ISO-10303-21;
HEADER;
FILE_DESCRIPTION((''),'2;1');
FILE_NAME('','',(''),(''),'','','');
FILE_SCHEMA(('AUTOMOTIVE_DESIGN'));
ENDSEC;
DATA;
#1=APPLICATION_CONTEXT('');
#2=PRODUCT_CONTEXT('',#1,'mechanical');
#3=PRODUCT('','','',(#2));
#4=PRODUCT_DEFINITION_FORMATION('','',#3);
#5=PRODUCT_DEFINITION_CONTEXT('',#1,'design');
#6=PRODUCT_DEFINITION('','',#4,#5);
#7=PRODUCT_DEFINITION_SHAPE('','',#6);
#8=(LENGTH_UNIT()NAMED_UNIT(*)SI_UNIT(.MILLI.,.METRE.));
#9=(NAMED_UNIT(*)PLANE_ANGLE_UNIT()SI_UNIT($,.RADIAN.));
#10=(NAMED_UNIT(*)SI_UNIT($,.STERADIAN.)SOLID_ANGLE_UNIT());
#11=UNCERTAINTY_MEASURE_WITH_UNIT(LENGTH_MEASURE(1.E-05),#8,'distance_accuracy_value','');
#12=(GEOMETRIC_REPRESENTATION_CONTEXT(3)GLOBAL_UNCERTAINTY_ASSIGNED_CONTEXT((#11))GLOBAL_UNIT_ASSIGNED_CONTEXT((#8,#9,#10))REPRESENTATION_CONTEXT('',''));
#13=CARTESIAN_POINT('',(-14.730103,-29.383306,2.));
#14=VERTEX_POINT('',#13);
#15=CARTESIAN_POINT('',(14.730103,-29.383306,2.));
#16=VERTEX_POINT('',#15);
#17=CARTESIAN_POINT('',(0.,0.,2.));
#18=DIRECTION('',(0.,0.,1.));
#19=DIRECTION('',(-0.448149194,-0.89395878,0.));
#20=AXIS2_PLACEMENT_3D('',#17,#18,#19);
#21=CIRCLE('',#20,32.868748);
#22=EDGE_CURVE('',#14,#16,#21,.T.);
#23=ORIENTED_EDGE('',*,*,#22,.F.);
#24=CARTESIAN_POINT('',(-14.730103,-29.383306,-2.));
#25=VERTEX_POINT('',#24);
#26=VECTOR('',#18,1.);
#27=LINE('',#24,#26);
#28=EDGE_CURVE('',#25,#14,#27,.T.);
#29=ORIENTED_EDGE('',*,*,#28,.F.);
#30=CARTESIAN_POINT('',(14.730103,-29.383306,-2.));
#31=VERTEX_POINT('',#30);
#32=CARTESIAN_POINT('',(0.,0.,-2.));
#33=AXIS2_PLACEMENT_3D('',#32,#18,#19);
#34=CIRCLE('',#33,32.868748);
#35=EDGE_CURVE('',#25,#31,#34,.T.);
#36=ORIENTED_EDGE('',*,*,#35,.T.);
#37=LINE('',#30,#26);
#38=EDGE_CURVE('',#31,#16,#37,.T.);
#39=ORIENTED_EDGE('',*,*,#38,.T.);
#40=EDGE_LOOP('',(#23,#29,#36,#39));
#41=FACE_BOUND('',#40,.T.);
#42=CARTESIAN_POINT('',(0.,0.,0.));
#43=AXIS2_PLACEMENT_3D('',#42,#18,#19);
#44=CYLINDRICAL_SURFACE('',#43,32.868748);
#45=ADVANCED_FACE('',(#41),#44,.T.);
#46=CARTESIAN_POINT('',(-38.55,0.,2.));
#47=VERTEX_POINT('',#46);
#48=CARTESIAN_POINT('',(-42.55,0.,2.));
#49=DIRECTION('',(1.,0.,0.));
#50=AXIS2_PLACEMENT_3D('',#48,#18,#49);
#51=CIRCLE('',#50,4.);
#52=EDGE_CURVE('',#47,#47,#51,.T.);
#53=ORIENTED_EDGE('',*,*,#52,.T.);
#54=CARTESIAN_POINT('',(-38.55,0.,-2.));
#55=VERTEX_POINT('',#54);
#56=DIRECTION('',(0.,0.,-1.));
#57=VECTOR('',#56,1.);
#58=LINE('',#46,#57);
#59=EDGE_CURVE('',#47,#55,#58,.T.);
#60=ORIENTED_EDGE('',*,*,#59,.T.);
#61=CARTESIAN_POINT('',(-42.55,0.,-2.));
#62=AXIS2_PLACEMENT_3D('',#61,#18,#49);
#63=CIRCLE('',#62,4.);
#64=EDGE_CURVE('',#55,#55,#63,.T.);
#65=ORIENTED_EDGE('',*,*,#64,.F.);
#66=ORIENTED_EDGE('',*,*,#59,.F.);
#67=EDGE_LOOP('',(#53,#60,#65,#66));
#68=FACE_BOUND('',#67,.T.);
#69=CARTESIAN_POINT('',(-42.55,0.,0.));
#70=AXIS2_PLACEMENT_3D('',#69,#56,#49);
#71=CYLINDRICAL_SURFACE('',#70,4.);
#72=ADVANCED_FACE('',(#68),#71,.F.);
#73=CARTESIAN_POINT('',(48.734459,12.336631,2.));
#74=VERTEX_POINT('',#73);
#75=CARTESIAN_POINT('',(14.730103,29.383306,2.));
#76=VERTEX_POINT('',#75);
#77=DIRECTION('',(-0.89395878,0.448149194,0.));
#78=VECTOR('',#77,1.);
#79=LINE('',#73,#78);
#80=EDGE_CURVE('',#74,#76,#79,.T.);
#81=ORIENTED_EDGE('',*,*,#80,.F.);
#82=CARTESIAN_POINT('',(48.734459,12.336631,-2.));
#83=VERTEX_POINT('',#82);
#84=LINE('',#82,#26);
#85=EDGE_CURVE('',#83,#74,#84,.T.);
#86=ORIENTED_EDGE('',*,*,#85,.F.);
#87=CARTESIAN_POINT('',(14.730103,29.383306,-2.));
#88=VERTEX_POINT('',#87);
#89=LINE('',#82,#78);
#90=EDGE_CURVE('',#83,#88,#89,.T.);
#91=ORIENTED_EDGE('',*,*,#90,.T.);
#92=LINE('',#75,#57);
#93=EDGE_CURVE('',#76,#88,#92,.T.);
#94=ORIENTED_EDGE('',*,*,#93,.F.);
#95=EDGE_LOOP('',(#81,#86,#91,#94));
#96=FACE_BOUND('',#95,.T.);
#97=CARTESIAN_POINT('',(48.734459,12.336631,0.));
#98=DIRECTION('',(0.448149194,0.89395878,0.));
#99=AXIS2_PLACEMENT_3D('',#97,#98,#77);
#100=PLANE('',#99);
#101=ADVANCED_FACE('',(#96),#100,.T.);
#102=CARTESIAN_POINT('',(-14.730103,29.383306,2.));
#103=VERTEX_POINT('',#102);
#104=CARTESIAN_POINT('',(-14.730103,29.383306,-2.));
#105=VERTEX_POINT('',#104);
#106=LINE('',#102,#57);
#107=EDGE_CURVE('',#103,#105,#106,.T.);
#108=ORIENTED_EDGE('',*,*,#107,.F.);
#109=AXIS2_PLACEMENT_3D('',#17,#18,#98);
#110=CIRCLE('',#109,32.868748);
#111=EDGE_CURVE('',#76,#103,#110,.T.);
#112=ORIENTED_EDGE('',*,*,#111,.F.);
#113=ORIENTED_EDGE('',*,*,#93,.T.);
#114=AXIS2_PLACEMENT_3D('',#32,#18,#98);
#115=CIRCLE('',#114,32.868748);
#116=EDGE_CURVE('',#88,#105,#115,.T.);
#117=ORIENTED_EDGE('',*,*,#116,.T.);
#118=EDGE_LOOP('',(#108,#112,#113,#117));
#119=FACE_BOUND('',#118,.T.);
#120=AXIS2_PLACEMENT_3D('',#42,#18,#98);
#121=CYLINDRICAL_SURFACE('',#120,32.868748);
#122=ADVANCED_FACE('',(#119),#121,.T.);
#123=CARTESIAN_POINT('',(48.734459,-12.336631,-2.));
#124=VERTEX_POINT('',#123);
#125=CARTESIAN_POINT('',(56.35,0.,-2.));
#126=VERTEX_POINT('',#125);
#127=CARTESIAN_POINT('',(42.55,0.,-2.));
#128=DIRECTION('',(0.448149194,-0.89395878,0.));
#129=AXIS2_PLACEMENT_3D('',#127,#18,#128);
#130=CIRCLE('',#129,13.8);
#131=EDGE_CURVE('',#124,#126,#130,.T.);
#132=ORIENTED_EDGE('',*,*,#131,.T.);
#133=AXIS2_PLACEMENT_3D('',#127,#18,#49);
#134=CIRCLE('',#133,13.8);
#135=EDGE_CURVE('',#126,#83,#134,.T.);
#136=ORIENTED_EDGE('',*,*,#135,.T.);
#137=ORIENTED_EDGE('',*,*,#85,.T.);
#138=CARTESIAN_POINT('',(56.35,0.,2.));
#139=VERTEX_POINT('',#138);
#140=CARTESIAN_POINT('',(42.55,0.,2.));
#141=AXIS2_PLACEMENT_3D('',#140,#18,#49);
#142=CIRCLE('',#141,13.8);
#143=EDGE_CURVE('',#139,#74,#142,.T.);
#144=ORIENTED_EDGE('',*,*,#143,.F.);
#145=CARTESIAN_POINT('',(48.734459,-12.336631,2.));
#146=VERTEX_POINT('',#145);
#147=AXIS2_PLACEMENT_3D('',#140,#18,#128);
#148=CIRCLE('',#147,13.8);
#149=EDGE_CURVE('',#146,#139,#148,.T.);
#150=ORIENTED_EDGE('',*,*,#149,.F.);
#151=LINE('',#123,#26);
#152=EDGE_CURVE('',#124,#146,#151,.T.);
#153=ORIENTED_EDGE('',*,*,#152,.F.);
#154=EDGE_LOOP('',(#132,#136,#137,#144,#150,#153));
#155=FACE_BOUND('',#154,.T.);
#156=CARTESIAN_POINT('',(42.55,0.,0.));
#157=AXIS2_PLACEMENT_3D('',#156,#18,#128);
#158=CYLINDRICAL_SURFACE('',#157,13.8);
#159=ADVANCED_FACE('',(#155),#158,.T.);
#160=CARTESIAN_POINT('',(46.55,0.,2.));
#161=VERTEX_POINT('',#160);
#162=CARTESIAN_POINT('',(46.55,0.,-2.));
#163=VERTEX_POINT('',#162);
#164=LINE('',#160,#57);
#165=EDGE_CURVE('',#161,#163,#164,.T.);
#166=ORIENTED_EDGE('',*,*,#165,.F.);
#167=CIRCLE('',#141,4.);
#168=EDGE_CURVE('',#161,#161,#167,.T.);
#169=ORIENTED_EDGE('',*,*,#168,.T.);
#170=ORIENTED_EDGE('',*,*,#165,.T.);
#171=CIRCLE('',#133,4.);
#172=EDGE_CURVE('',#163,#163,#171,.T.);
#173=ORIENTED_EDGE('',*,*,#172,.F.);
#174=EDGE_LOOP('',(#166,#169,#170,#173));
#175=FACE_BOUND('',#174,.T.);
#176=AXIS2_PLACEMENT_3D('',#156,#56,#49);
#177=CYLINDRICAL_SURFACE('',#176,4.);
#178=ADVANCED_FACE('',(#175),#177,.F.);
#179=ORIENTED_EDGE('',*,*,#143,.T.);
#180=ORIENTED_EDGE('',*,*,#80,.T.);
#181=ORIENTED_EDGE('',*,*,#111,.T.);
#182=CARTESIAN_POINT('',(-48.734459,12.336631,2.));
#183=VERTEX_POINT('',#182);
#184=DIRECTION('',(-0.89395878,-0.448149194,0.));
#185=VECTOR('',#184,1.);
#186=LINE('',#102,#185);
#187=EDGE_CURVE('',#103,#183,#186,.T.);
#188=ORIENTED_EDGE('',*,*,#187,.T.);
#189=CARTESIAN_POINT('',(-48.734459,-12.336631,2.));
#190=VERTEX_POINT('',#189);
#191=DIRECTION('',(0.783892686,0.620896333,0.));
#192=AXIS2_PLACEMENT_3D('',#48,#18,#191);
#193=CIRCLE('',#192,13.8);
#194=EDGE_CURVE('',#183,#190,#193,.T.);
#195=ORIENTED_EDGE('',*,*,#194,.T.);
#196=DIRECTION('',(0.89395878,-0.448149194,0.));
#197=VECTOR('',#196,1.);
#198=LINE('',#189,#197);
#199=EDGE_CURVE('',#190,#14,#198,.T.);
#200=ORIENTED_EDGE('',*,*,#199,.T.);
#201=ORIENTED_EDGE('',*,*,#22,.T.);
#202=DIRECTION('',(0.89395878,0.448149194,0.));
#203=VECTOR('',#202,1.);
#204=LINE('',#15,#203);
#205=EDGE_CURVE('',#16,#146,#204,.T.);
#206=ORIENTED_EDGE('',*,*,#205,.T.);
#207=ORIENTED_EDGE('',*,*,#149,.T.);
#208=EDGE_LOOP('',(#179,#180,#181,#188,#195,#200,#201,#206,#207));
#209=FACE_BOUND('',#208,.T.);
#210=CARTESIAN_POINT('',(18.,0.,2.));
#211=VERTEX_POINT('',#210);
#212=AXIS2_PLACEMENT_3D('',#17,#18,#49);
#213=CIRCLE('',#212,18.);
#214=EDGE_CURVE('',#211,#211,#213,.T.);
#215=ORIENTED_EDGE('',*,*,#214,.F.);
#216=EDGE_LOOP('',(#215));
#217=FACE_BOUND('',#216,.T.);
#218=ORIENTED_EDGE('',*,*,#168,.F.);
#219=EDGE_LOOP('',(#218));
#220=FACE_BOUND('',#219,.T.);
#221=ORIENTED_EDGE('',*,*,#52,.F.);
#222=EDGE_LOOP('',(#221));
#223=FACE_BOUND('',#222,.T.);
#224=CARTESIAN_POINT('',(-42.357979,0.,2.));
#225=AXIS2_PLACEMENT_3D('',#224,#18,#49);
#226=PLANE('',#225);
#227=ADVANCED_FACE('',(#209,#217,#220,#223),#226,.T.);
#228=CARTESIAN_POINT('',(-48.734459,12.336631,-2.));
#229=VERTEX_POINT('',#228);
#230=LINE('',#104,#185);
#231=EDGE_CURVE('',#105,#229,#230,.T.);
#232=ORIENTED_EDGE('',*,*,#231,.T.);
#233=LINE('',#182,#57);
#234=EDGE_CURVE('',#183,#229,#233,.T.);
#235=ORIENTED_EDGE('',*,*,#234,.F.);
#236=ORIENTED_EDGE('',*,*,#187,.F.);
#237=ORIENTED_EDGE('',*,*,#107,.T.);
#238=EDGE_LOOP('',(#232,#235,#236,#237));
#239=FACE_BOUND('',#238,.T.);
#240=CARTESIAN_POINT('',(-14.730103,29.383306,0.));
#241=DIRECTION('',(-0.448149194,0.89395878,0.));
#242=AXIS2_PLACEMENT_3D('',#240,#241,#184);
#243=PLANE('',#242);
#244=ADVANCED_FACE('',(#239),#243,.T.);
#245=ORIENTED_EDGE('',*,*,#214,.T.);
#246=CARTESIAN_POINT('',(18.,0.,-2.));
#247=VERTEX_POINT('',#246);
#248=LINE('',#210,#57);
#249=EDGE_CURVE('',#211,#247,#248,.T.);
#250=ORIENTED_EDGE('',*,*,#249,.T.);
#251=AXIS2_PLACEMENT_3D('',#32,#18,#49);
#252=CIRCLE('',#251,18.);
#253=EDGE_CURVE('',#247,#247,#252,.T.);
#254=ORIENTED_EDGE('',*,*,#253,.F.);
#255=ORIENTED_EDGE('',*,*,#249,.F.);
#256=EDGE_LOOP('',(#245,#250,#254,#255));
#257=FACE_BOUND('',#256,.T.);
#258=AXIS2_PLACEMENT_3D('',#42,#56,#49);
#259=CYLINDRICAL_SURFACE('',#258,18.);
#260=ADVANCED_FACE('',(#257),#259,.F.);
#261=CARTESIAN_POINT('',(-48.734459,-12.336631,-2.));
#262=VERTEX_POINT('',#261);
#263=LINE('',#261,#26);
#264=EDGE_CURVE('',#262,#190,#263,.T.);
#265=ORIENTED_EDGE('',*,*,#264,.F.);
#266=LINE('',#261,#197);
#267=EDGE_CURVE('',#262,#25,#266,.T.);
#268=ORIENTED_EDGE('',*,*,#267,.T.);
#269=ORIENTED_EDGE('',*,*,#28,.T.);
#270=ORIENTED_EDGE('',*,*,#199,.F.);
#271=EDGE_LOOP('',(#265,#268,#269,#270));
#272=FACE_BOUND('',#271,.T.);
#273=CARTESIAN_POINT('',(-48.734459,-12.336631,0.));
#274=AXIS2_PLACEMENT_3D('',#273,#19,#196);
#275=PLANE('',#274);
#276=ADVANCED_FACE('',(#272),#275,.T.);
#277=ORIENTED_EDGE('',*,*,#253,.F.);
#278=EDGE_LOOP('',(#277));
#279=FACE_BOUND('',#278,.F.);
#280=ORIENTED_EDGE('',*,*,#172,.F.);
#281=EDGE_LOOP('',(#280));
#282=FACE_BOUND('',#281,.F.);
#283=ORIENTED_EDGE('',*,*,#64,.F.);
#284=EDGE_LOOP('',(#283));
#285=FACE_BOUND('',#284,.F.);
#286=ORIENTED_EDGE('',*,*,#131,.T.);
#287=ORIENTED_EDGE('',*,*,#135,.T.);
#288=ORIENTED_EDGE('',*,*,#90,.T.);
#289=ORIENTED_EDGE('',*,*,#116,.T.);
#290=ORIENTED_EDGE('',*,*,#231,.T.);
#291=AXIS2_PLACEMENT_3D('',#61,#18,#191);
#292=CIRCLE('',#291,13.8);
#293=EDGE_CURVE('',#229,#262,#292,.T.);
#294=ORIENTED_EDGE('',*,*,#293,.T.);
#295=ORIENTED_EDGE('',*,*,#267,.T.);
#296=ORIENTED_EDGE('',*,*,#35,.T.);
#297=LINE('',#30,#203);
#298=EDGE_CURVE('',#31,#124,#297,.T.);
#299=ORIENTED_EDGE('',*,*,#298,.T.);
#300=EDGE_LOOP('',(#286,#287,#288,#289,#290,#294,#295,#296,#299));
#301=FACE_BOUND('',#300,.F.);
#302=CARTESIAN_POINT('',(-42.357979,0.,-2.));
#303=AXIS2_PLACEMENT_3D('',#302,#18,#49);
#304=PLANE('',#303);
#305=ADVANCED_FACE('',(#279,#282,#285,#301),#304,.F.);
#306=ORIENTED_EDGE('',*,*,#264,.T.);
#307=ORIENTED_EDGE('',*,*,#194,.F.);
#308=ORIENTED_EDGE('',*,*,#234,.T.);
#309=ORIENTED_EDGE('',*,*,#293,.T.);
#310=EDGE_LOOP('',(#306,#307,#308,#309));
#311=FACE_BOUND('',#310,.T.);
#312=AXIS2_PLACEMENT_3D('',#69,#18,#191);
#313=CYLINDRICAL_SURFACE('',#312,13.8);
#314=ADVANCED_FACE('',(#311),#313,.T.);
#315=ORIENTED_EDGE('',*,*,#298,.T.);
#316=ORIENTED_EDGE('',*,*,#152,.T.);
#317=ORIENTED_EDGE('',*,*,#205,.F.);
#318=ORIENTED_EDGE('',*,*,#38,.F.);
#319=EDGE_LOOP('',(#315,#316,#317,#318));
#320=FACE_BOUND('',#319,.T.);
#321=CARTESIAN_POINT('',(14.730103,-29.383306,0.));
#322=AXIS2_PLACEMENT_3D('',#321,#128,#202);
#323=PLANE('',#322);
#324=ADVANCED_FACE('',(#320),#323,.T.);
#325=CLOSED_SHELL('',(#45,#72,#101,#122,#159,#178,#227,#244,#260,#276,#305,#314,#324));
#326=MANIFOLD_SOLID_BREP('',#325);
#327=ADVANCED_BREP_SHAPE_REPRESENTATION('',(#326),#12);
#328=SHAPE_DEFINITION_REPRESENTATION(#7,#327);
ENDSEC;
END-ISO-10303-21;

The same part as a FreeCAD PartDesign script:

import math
import FreeCAD as App
import Part
import Sketcher

V = App.Vector

doc = App.newDocument("Part")
params = doc.addObject("Spreadsheet::Sheet", "Params")
for row, (alias, value) in enumerate([
    ("sketch1_diameter", "8 mm"),
    ("sketch1_diameter2", "36 mm"),
    ("sketch1_radius", "13.8 mm"),
    ("pad1_length", "4 mm"),
], start=1):
    params.set(f"A{row}", alias)
    params.set(f"B{row}", "=" + value)
    params.setAlias(f"B{row}", alias)

body = doc.addObject("PartDesign::Body", "Body")

# Sketch on XY plane
sketch1 = doc.addObject("Sketcher::SketchObject", "Sketch")
body.addObject(sketch1)
sketch1.AttachmentSupport = (doc.XY_Plane, [""])
sketch1.MapMode = "FlatFace"
sketch1.addGeometry([
    Part.ArcOfCircle(Part.Circle(V(-42.55, 0, 0), V(0, 0, 1), 13.8), math.radians(116.625), math.radians(243.375)),  # 0
    Part.LineSegment(V(-48.734459, -12.336631, 0), V(-14.730103, -29.383306, 0)),  # 1
    Part.ArcOfCircle(Part.Circle(V(0, 0, 0), V(0, 0, 1), 32.868748), math.radians(-116.625), math.radians(-63.375)),  # 2
    Part.LineSegment(V(14.730103, -29.383306, 0), V(48.734459, -12.336631, 0)),  # 3
    Part.ArcOfCircle(Part.Circle(V(42.55, 0, 0), V(0, 0, 1), 13.8), math.radians(-63.375), math.radians(0)),  # 4
    Part.ArcOfCircle(Part.Circle(V(42.55, 0, 0), V(0, 0, 1), 13.8), math.radians(0), math.radians(63.375)),  # 5
    Part.LineSegment(V(48.734459, 12.336631, 0), V(14.730103, 29.383306, 0)),  # 6
    Part.ArcOfCircle(Part.Circle(V(0, 0, 0), V(0, 0, 1), 32.868748), math.radians(63.375), math.radians(116.625)),  # 7
    Part.LineSegment(V(-14.730103, 29.383306, 0), V(-48.734459, 12.336631, 0)),  # 8
    Part.Circle(V(-42.55, 0, 0), V(0, 0, 1), 4),  # 9
    Part.Circle(V(0, 0, 0), V(0, 0, 1), 18),  # 10
    Part.Circle(V(42.55, 0, 0), V(0, 0, 1), 4),  # 11
], False)
sketch1.addConstraint([
    Sketcher.Constraint("Tangent", 0, 2, 1, 1),
    Sketcher.Constraint("Tangent", 1, 2, 2, 1),
    Sketcher.Constraint("Tangent", 2, 2, 3, 1),
    Sketcher.Constraint("Tangent", 3, 2, 4, 1),
    Sketcher.Constraint("Tangent", 4, 2, 5, 1),
    Sketcher.Constraint("Tangent", 5, 2, 6, 1),
    Sketcher.Constraint("Tangent", 6, 2, 7, 1),
    Sketcher.Constraint("Tangent", 7, 2, 8, 1),
    Sketcher.Constraint("Tangent", 8, 2, 0, 1),
    Sketcher.Constraint("Coincident", 2, 3, -1, 1),
    Sketcher.Constraint("Coincident", 7, 3, -1, 1),
    Sketcher.Constraint("Coincident", 10, 3, -1, 1),
    Sketcher.Constraint("Coincident", 9, 3, 0, 3),
    Sketcher.Constraint("Coincident", 11, 3, 4, 3),
    Sketcher.Constraint("Equal", 0, 4),
    Sketcher.Constraint("Equal", 4, 5),
    Sketcher.Constraint("Equal", 2, 7),
    Sketcher.Constraint("Equal", 9, 11),
    Sketcher.Constraint("Symmetric", 0, 3, 4, 3, -1, 1),
    Sketcher.Constraint("PointOnObject", 0, 3, -1),
    Sketcher.Constraint("PointOnObject", 4, 2, -1),
    Sketcher.Constraint("Diameter", 9, 8.0),
    Sketcher.Constraint("Diameter", 10, 36.0),
    Sketcher.Constraint("Radius", 0, 13.8),
    Sketcher.Constraint("DistanceX", 0, 3, 4, 3, 85.1),
    Sketcher.Constraint("Radius", 2, 32.868748),
])
sketch1.setExpression("Constraints[21]", "Params.sketch1_diameter")
sketch1.setExpression("Constraints[22]", "Params.sketch1_diameter2")
sketch1.setExpression("Constraints[23]", "Params.sketch1_radius")
pad1 = doc.addObject("PartDesign::Pad", "Pad")
body.addObject(pad1)
pad1.Profile = sketch1
pad1.setExpression("Length", "Params.pad1_length")
pad1.Midplane = True

doc.recompute()
